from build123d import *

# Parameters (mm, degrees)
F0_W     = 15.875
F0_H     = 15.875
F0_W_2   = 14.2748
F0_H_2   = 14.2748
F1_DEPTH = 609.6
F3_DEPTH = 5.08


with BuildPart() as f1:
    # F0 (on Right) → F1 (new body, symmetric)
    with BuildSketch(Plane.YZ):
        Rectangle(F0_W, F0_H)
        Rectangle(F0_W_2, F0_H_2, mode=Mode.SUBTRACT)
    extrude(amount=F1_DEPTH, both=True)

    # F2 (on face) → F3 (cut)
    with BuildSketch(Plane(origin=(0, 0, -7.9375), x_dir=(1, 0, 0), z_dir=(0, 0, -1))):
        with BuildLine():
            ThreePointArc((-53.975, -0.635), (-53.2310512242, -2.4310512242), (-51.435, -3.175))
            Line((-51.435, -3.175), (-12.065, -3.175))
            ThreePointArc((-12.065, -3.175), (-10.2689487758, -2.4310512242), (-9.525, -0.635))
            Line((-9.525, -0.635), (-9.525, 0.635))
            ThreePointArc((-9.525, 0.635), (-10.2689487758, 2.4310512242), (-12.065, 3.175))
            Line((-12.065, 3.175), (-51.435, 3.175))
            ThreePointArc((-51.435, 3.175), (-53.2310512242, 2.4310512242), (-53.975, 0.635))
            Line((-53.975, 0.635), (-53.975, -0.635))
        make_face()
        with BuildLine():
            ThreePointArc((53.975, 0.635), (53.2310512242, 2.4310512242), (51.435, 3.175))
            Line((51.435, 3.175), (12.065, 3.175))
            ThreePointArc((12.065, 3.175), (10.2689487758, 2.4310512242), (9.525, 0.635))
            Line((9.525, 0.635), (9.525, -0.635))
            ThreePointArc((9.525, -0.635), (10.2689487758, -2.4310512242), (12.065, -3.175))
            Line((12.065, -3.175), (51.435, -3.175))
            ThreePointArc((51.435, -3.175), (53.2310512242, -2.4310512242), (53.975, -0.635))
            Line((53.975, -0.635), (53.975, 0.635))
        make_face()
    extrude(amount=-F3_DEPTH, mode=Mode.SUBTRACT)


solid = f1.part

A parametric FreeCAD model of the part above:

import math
import FreeCAD as App
import Part
import Sketcher

V = App.Vector
Q = App.Units.Quantity

doc = App.newDocument("Part")
body = doc.addObject("PartDesign::Body", "Body")

# Sketch on YZ plane
sketch1 = body.newObject("Sketcher::SketchObject", "Sketch")
sketch1.AttachmentSupport = (doc.getObject("YZ_Plane"), [""])
sketch1.MapMode = "FlatFace"
sketch1.addGeometry(Part.LineSegment(V(-8, 8, 0), V(-8, -8, 0)), False)
sketch1.addGeometry(Part.LineSegment(V(-8, -8, 0), V(8, -8, 0)), False)
sketch1.addGeometry(Part.LineSegment(V(8, -8, 0), V(8, 8, 0)), False)
sketch1.addGeometry(Part.LineSegment(V(8, 8, 0), V(-8, 8, 0)), False)
sketch1.addGeometry(Part.LineSegment(V(7, -7, 0), V(-7, -7, 0)), False)
sketch1.addGeometry(Part.LineSegment(V(-7, -7, 0), V(-7, 7, 0)), False)
sketch1.addGeometry(Part.LineSegment(V(-7, 7, 0), V(7, 7, 0)), False)
sketch1.addGeometry(Part.LineSegment(V(7, 7, 0), V(7, -7, 0)), False)
sketch1.addConstraint(Sketcher.Constraint("Coincident", 0, 2, 1, 1))
sketch1.addConstraint(Sketcher.Constraint("Coincident", 1, 2, 2, 1))
sketch1.addConstraint(Sketcher.Constraint("Coincident", 2, 2, 3, 1))
sketch1.addConstraint(Sketcher.Constraint("Coincident", 3, 2, 0, 1))
sketch1.addConstraint(Sketcher.Constraint("Coincident", 4, 2, 5, 1))
sketch1.addConstraint(Sketcher.Constraint("Coincident", 5, 2, 6, 1))
sketch1.addConstraint(Sketcher.Constraint("Coincident", 6, 2, 7, 1))
sketch1.addConstraint(Sketcher.Constraint("Coincident", 7, 2, 4, 1))
sketch1.addConstraint(Sketcher.Constraint("Vertical", 0))
sketch1.addConstraint(Sketcher.Constraint("Horizontal", 1))
sketch1.addConstraint(Sketcher.Constraint("Vertical", 2))
sketch1.addConstraint(Sketcher.Constraint("Horizontal", 3))
sketch1.addConstraint(Sketcher.Constraint("Horizontal", 4))
sketch1.addConstraint(Sketcher.Constraint("Vertical", 5))
sketch1.addConstraint(Sketcher.Constraint("Horizontal", 6))
sketch1.addConstraint(Sketcher.Constraint("Vertical", 7))
sketch1.addConstraint(Sketcher.Constraint("Symmetric", 0, 2, 2, 2, -1, 1))
sketch1.addConstraint(Sketcher.Constraint("Symmetric", 4, 2, 6, 2, -1, 1))
sketch1.addConstraint(Sketcher.Constraint("Equal", 3, 0))
sketch1.addConstraint(Sketcher.Constraint("Equal", 6, 5))
sketch1.addConstraint(Sketcher.Constraint("DistanceX", 1, 1, 1, 2, Q("0.625 in")))
sketch1.addConstraint(Sketcher.Constraint("DistanceX", 4, 2, 4, 1, Q("0.562 in")))
pad1 = body.newObject("PartDesign::Pad", "Pad")
pad1.Profile = sketch1
pad1.Length = Q("48 in")
pad1.Midplane = True

# Sketch on XY plane
sketch2 = body.newObject("Sketcher::SketchObject", "Sketch001")
sketch2.AttachmentSupport = (doc.getObject("XY_Plane"), [""])
sketch2.MapMode = "FlatFace"
sketch2.AttachmentOffset = App.Placement(V(0, 0, -0.3125 * 25.4), App.Rotation())
sketch2.addGeometry(Part.ArcOfCircle(Part.Circle(V(-51.4, 0.6, 0), V(0, 0, 1), 2.5), math.radians(90), math.radians(180)), False)
sketch2.addGeometry(Part.LineSegment(V(-51.4, 3.2, 0), V(-12.1, 3.2, 0)), False)
sketch2.addGeometry(Part.ArcOfCircle(Part.Circle(V(-12.1, 0.6, 0), V(0, 0, 1), 2.5), math.radians(0), math.radians(90)), False)
sketch2.addGeometry(Part.LineSegment(V(-9.5, 0.6, 0), V(-9.5, -0.6, 0)), False)
sketch2.addGeometry(Part.ArcOfCircle(Part.Circle(V(-12.1, -0.6, 0), V(0, 0, 1), 2.5), math.radians(-90), math.radians(0)), False)
sketch2.addGeometry(Part.LineSegment(V(-12.1, -3.2, 0), V(-51.4, -3.2, 0)), False)
sketch2.addGeometry(Part.ArcOfCircle(Part.Circle(V(-51.4, -0.6, 0), V(0, 0, 1), 2.5), math.radians(180), math.radians(270)), False)
sketch2.addGeometry(Part.LineSegment(V(-54, -0.6, 0), V(-54, 0.6, 0)), False)
sketch2.addGeometry(Part.ArcOfCircle(Part.Circle(V(51.4, -0.6, 0), V(0, 0, 1), 2.5), math.radians(-90), math.radians(0)), False)
sketch2.addGeometry(Part.LineSegment(V(51.4, -3.2, 0), V(12.1, -3.2, 0)), False)
sketch2.addGeometry(Part.ArcOfCircle(Part.Circle(V(12.1, -0.6, 0), V(0, 0, 1), 2.5), math.radians(180), math.radians(270)), False)
sketch2.addGeometry(Part.LineSegment(V(9.5, -0.6, 0), V(9.5, 0.6, 0)), False)
sketch2.addGeometry(Part.ArcOfCircle(Part.Circle(V(12.1, 0.6, 0), V(0, 0, 1), 2.5), math.radians(90), math.radians(180)), False)
sketch2.addGeometry(Part.LineSegment(V(12.1, 3.2, 0), V(51.4, 3.2, 0)), False)
sketch2.addGeometry(Part.ArcOfCircle(Part.Circle(V(51.4, 0.6, 0), V(0, 0, 1), 2.5), math.radians(0), math.radians(90)), False)
sketch2.addGeometry(Part.LineSegment(V(54, 0.6, 0), V(54, -0.6, 0)), False)
sketch2.addConstraint(Sketcher.Constraint("Tangent", 0, 1, 1, 1))
sketch2.addConstraint(Sketcher.Constraint("Tangent", 1, 2, 2, 2))
sketch2.addConstraint(Sketcher.Constraint("Tangent", 2, 1, 3, 1))
sketch2.addConstraint(Sketcher.Constraint("Tangent", 3, 2, 4, 2))
sketch2.addConstraint(Sketcher.Constraint("Tangent", 4, 1, 5, 1))
sketch2.addConstraint(Sketcher.Constraint("Tangent", 5, 2, 6, 2))
sketch2.addConstraint(Sketcher.Constraint("Tangent", 6, 1, 7, 1))
sketch2.addConstraint(Sketcher.Constraint("Tangent", 7, 2, 0, 2))
sketch2.addConstraint(Sketcher.Constraint("Tangent", 8, 1, 9, 1))
sketch2.addConstraint(Sketcher.Constraint("Tangent", 9, 2, 10, 2))
sketch2.addConstraint(Sketcher.Constraint("Tangent", 10, 1, 11, 1))
sketch2.addConstraint(Sketcher.Constraint("Tangent", 11, 2, 12, 2))
sketch2.addConstraint(Sketcher.Constraint("Tangent", 12, 1, 13, 1))
sketch2.addConstraint(Sketcher.Constraint("Tangent", 13, 2, 14, 2))
sketch2.addConstraint(Sketcher.Constraint("Tangent", 14, 1, 15, 1))
sketch2.addConstraint(Sketcher.Constraint("Tangent", 15, 2, 8, 2))
sketch2.addConstraint(Sketcher.Constraint("Horizontal", 1))
sketch2.addConstraint(Sketcher.Constraint("Vertical", 3))
sketch2.addConstraint(Sketcher.Constraint("Horizontal", 5))
sketch2.addConstraint(Sketcher.Constraint("Vertical", 7))
sketch2.addConstraint(Sketcher.Constraint("Horizontal", 9))
sketch2.addConstraint(Sketcher.Constraint("Vertical", 11))
sketch2.addConstraint(Sketcher.Constraint("Horizontal", 13))
sketch2.addConstraint(Sketcher.Constraint("Vertical", 15))
sketch2.addConstraint(Sketcher.Constraint("Equal", 0, 2))
sketch2.addConstraint(Sketcher.Constraint("Equal", 2, 4))
sketch2.addConstraint(Sketcher.Constraint("Equal", 4, 6))
sketch2.addConstraint(Sketcher.Constraint("Equal", 6, 8))
sketch2.addConstraint(Sketcher.Constraint("Equal", 8, 10))
sketch2.addConstraint(Sketcher.Constraint("Equal", 10, 12))
sketch2.addConstraint(Sketcher.Constraint("Equal", 12, 14))
sketch2.addConstraint(Sketcher.Constraint("Symmetric", 0, 3, 8, 3, -1, 1))
sketch2.addConstraint(Sketcher.Constraint("Symmetric", 4, 3, 12, 3, -1, 1))
sketch2.addConstraint(Sketcher.Constraint("Horizontal", 6, 3, 8, 3))
sketch2.addConstraint(Sketcher.Constraint("Radius", 0, Q("0.1 in")))
sketch2.addConstraint(Sketcher.Constraint("DistanceX", 1, 1, 1, 2, Q("1.55 in")))
sketch2.addConstraint(Sketcher.Constraint("DistanceY", 3, 2, 3, 1, Q("0.05 in")))
sketch2.addConstraint(Sketcher.Constraint("DistanceX", 4, 3, 8, 3, Q("2.5 in")))
pocket1 = body.newObject("PartDesign::Pocket", "Pocket")
pocket1.Profile = sketch2
pocket1.Length = Q("0.2 in")
pocket1.Reversed = True

doc.recompute()
